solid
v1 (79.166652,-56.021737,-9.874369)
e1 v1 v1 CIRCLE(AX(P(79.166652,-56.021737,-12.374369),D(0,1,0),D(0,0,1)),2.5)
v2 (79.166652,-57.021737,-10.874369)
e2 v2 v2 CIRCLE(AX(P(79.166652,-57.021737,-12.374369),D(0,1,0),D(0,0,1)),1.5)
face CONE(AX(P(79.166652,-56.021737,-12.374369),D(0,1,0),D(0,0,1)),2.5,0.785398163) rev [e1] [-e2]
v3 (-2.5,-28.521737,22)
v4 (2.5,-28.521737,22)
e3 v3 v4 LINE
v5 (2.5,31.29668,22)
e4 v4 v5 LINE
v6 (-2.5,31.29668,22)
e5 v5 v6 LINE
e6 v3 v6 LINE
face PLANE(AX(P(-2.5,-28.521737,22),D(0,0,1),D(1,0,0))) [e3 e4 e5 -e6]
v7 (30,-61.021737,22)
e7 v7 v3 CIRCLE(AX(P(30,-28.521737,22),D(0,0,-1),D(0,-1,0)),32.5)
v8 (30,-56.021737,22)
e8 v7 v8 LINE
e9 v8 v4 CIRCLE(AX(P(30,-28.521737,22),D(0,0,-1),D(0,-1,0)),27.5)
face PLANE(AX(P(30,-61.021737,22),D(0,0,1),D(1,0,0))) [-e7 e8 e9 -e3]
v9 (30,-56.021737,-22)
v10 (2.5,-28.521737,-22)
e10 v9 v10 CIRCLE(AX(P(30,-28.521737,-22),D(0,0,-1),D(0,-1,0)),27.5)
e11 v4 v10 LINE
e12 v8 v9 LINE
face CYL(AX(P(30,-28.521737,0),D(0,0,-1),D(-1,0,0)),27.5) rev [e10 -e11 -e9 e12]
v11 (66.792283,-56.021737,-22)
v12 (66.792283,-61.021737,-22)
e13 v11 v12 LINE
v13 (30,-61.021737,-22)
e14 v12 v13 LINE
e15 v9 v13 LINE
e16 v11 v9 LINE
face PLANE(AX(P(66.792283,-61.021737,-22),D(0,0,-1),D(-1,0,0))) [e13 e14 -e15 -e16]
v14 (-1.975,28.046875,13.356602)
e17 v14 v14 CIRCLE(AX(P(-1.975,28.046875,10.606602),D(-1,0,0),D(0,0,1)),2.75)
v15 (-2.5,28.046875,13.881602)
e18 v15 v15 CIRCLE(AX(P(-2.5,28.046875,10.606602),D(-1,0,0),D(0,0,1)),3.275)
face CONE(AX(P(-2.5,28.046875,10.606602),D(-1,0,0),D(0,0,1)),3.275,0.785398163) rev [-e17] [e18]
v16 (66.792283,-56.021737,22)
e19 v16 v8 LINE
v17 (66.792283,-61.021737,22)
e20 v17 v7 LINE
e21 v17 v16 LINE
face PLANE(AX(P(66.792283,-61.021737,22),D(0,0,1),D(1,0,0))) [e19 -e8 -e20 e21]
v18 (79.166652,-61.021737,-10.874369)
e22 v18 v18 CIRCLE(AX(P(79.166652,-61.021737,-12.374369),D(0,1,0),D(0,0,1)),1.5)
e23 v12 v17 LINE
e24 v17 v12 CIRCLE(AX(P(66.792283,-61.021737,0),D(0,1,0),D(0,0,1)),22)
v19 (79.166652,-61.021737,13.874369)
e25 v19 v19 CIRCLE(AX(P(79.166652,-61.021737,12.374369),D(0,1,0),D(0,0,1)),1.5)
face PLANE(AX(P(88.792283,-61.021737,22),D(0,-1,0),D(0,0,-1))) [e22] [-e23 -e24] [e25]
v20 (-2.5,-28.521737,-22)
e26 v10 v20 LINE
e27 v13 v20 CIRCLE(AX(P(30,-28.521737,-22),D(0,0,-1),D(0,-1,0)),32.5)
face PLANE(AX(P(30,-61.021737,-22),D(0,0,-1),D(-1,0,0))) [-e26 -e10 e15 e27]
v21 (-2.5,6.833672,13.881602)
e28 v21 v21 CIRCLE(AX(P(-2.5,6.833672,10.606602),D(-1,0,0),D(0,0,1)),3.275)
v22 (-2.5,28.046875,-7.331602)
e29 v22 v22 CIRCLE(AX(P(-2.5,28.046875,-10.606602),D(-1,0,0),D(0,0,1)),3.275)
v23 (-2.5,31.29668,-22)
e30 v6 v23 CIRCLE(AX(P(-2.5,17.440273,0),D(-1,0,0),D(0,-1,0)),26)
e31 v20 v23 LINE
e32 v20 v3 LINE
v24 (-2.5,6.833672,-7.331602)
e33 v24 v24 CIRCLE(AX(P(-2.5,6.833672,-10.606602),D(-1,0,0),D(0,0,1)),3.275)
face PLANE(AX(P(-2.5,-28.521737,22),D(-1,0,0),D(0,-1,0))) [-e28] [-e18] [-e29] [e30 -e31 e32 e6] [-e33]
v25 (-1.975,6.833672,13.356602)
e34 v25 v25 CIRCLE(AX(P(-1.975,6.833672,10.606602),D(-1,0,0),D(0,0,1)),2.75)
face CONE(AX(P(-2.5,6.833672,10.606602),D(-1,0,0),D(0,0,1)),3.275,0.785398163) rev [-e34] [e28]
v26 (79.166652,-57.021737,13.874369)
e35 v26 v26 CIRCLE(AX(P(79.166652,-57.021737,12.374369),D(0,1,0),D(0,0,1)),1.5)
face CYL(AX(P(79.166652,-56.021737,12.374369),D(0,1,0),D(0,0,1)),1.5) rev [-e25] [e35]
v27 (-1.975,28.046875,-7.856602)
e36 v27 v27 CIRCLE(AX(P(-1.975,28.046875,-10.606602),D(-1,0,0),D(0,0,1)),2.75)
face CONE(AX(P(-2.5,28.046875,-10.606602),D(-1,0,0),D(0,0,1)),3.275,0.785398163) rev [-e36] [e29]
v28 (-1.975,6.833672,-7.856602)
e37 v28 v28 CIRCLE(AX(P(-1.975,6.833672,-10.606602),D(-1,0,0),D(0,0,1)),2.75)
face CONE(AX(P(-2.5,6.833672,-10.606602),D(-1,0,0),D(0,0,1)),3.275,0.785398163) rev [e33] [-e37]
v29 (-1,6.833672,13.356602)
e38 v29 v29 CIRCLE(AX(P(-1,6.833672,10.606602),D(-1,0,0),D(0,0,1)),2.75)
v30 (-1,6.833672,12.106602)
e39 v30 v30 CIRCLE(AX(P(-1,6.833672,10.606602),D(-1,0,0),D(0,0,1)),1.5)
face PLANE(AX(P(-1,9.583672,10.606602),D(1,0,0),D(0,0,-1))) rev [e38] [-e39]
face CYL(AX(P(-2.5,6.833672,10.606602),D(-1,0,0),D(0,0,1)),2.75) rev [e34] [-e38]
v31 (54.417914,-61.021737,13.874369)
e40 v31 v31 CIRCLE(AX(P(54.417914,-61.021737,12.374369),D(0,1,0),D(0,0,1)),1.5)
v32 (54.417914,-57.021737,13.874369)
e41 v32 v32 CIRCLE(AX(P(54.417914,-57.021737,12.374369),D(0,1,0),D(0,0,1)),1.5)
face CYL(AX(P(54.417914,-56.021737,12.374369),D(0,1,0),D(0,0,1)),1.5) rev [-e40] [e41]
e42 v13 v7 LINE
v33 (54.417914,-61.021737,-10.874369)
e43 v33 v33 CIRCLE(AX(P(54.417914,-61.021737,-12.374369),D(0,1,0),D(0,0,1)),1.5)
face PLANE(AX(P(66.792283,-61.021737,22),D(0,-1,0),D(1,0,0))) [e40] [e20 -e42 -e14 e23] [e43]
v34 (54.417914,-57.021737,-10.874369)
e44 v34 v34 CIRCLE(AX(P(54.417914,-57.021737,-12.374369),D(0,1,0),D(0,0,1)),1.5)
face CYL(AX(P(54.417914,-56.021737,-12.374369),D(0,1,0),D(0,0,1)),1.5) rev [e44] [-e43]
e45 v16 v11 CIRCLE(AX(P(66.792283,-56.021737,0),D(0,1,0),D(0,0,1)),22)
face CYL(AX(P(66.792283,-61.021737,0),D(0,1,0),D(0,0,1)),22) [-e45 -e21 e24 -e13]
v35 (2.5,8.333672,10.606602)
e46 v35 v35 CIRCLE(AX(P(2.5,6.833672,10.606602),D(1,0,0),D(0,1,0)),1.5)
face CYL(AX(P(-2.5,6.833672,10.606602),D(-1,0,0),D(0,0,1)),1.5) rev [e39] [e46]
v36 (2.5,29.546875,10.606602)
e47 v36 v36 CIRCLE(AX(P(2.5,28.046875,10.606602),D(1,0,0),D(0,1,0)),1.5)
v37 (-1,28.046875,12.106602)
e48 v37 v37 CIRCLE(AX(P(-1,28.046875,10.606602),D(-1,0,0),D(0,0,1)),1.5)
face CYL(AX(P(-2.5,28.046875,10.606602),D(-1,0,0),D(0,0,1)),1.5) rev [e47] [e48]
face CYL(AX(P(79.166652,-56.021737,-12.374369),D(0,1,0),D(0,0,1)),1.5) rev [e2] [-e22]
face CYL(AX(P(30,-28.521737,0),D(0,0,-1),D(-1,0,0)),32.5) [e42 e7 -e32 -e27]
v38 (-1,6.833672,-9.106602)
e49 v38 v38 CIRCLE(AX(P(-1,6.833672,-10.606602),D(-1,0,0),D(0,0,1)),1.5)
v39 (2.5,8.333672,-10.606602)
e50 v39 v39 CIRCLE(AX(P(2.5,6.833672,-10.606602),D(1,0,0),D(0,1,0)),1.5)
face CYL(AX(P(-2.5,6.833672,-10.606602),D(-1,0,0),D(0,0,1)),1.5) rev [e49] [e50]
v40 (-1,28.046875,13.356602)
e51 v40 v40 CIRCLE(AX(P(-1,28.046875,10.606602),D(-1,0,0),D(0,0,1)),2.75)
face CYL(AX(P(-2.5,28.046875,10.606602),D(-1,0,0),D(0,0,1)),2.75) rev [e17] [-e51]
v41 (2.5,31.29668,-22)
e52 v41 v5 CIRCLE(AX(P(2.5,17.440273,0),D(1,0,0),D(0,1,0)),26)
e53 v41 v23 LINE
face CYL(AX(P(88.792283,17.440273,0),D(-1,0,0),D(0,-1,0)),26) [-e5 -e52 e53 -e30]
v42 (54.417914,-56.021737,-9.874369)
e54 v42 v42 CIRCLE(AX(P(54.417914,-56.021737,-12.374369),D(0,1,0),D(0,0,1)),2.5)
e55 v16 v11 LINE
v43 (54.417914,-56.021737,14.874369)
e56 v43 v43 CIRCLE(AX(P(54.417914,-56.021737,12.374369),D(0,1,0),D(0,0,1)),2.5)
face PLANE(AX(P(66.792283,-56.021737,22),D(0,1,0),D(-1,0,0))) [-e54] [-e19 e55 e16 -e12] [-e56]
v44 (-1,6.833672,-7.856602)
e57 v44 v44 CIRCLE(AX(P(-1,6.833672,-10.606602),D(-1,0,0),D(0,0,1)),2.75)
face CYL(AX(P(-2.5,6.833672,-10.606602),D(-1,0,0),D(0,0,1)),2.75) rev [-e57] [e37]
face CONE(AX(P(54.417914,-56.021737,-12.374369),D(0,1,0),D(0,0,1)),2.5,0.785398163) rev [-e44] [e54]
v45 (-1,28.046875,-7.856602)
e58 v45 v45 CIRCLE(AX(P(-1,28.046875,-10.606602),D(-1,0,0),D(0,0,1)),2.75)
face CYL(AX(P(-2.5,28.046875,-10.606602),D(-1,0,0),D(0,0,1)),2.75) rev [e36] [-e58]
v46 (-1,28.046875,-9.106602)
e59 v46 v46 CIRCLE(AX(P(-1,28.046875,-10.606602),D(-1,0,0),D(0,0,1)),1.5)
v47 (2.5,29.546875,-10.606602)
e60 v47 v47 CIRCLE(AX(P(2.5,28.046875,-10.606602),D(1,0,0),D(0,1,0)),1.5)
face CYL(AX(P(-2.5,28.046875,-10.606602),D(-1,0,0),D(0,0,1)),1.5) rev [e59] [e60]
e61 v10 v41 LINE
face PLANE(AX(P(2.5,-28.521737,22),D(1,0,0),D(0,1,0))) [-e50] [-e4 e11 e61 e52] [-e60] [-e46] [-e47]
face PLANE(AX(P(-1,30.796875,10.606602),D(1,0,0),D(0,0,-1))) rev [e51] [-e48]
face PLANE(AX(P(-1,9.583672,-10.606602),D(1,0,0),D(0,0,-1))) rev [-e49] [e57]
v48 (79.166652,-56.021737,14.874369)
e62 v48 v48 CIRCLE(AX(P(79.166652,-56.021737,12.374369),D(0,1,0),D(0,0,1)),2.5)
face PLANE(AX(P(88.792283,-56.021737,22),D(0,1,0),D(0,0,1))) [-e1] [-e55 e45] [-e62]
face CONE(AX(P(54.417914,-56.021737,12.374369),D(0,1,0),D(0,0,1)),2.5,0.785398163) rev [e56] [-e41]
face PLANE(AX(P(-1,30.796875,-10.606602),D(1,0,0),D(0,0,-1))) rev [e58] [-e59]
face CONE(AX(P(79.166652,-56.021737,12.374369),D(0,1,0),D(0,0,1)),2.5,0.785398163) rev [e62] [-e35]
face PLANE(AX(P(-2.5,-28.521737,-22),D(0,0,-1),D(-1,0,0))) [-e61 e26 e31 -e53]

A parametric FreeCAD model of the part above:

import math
import FreeCAD as App
import Part
import Sketcher

V = App.Vector
Q = App.Units.Quantity

doc = App.newDocument("Part")
params = doc.addObject("Spreadsheet::Sheet", "Params")
for row, (alias, value) in enumerate([
    ("sketch1_width", "5 mm"),
    ("sketch1_height", "44 mm"),
    ("sketch2_radius", "30 mm"),
    ("sketch3_radius", "22 mm"),
    ("sketch4_radius", "26 mm"),
    ("sketch4_height", "44 mm"),
    ("sketch5_diameter", "3 mm"),
    ("hole_diameter", "3 mm"),
    ("hole_csink_diameter", "5 mm"),
    ("sketch6_height", "1.5 mm"),
    ("sketch6_height2", "1.25 mm"),
    ("groove_angle", "360 deg"),
    ("linearpattern_pitch", "21.213203 mm"),
    ("linearpattern2_pitch", "21.213203 mm"),
    ("linearpattern3_pitch", "30 mm"),
], start=1):
    params.set(f"A{row}", alias)
    params.set(f"B{row}", "=" + value)
    params.setAlias(f"B{row}", alias)

body = doc.addObject("PartDesign::Body", "Body")

# Sketch on XZ plane
sketch1 = body.newObject("Sketcher::SketchObject", "Sketch")
sketch1.AttachmentSupport = (doc.getObject("XZ_Plane"), [""])
sketch1.MapMode = "FlatFace"
sketch1.addGeometry([
    Part.LineSegment(V(-2, -22, 0), V(-2, 22, 0)),
    Part.LineSegment(V(-2, 22, 0), V(2, 22, 0)),
    Part.LineSegment(V(2, 22, 0), V(2, -22, 0)),
    Part.LineSegment(V(2, -22, 0), V(-2, -22, 0)),
], False)
sketch1.addConstraint([
    Sketcher.Constraint("Coincident", 0, 2, 1, 1),
    Sketcher.Constraint("Coincident", 1, 2, 2, 1),
    Sketcher.Constraint("Coincident", 2, 2, 3, 1),
    Sketcher.Constraint("Coincident", 3, 2, 0, 1),
    Sketcher.Constraint("Vertical", 0),
    Sketcher.Constraint("Horizontal", 1),
    Sketcher.Constraint("Vertical", 2),
    Sketcher.Constraint("Horizontal", 3),
    Sketcher.Constraint("Symmetric", 0, 2, 2, 2, -1, 1),
    Sketcher.Constraint("DistanceX", 1, 1, 1, 2, 5.0),
    Sketcher.Constraint("DistanceY", 0, 1, 0, 2, 44.0),
])
sketch1.setExpression("Constraints[9]", "Params.sketch1_width")
sketch1.setExpression("Constraints[10]", "Params.sketch1_height")

# Sketch on XY plane
sketch2 = body.newObject("Sketcher::SketchObject", "Sketch001")
sketch2.AttachmentSupport = (doc.getObject("XY_Plane"), [""])
sketch2.MapMode = "FlatFace"
sketch2.addGeometry([
    Part.LineSegment(V(0, 44, 0), V(0, -29, 0)),
    Part.ArcOfCircle(Part.Circle(V(30, -29, 0), V(0, 0, 1), 30), math.radians(180), math.radians(270)),
    Part.LineSegment(V(30, -59, 0), V(89, -59, 0)),
], False)
sketch2.addConstraint([
    Sketcher.Constraint("Tangent", 0, 2, 1, 1),
    Sketcher.Constraint("Tangent", 1, 2, 2, 1),
    Sketcher.Constraint("Vertical", 0),
    Sketcher.Constraint("Horizontal", 2),
    Sketcher.Constraint("PointOnObject", 0, 1, -2),
    Sketcher.Constraint("Radius", 1, 30.0),
    Sketcher.Constraint("DistanceY", 0, 2, 0, 1, 72.462011),
    Sketcher.Constraint("DistanceX", 2, 1, 2, 2, 58.792283),
    Sketcher.Constraint("DistanceY", 1, 3, -1, 1, 28.521737),
])
sketch2.setExpression("Constraints[5]", "Params.sketch2_radius")
doc.recompute()

additivepipe = body.newObject("PartDesign::AdditivePipe", "AdditivePipe")
additivepipe.Profile = sketch1
additivepipe.Spine = (sketch2, ["Edge1", "Edge2", "Edge3"])

# Sketch on XZ plane
sketch3 = body.newObject("Sketcher::SketchObject", "Sketch002")
sketch3.AttachmentSupport = (doc.getObject("XZ_Plane"), [""])
sketch3.MapMode = "FlatFace"
sketch3.AttachmentOffset = App.Placement(V(0, 0, 56.021737), App.Rotation())
sketch3.addGeometry([
    Part.LineSegment(V(89, -22, 0), V(67, -22, 0)),  # 0
    Part.ArcOfCircle(Part.Circle(V(67, 0, 0), V(0, 0, 1), 22), math.radians(-90), math.radians(0)),  # 1
    Part.LineSegment(V(89, 0, 0), V(89, -22, 0)),  # 2
    Part.LineSegment(V(89, 22, 0), V(89, 0, 0)),  # 3
    Part.ArcOfCircle(Part.Circle(V(67, 0, 0), V(0, 0, 1), 22), math.radians(0), math.radians(90)),  # 4
    Part.LineSegment(V(67, 22, 0), V(89, 22, 0)),  # 5
], False)
sketch3.addConstraint([
    Sketcher.Constraint("Tangent", 0, 2, 1, 1),
    Sketcher.Constraint("Tangent", 1, 2, 2, 1),
    Sketcher.Constraint("Coincident", 2, 2, 0, 1),
    Sketcher.Constraint("Tangent", 3, 2, 4, 1),
    Sketcher.Constraint("Tangent", 4, 2, 5, 1),
    Sketcher.Constraint("Coincident", 5, 2, 3, 1),
    Sketcher.Constraint("Horizontal", 0),
    Sketcher.Constraint("Vertical", 2),
    Sketcher.Constraint("Vertical", 3),
    Sketcher.Constraint("Horizontal", 5),
    Sketcher.Constraint("Coincident", 4, 3, 1, 3),
    Sketcher.Constraint("Equal", 1, 4),
    Sketcher.Constraint("PointOnObject", 1, 3, -1),
    Sketcher.Constraint("Radius", 1, 22.0),
    Sketcher.Constraint("DistanceX", -1, 1, 1, 3, 66.792283),
])
sketch3.setExpression("Constraints[13]", "Params.sketch3_radius")
pocket1 = body.newObject("PartDesign::Pocket", "Pocket")
pocket1.Profile = sketch3
pocket1.Type = "ThroughAll"
pocket1.Reversed = True

# Sketch on YZ plane
sketch4 = body.newObject("Sketcher::SketchObject", "Sketch003")
sketch4.AttachmentSupport = (doc.getObject("YZ_Plane"), [""])
sketch4.MapMode = "FlatFace"
sketch4.AttachmentOffset = App.Placement(V(0, 0, -2.5), App.Rotation())
sketch4.addGeometry([
    Part.LineSegment(V(44, 22, 0), V(44, -22, 0)),
    Part.LineSegment(V(44, -22, 0), V(31, -22, 0)),
    Part.ArcOfCircle(Part.Circle(V(17, 0, 0), V(0, 0, 1), 26), math.radians(-58), math.radians(58)),
    Part.LineSegment(V(31, 22, 0), V(44, 22, 0)),
], False)
sketch4.addConstraint([
    Sketcher.Constraint("Coincident", 0, 2, 1, 1),
    Sketcher.Constraint("Coincident", 1, 2, 2, 1),
    Sketcher.Constraint("Coincident", 2, 2, 3, 1),
    Sketcher.Constraint("Coincident", 3, 2, 0, 1),
    Sketcher.Constraint("Vertical", 0),
    Sketcher.Constraint("Horizontal", 1),
    Sketcher.Constraint("Horizontal", 3),
    Sketcher.Constraint("Symmetric", 1, 2, 2, 2, -1),
    Sketcher.Constraint("Radius", 2, 26.0),
    Sketcher.Constraint("DistanceY", 0, 2, 0, 1, 44.0),
    Sketcher.Constraint("DistanceX", 2, 3, 0, 2, 26.5),
    Sketcher.Constraint("DistanceX", -1, 1, 1, 2, 31.29668),
])
sketch4.setExpression("Constraints[8]", "Params.sketch4_radius")
sketch4.setExpression("Constraints[9]", "Params.sketch4_height")
pocket2 = body.newObject("PartDesign::Pocket", "Pocket001")
pocket2.Profile = sketch4
pocket2.Type = "ThroughAll"
pocket2.Reversed = True

# Sketch on XZ plane
sketch5 = body.newObject("Sketcher::SketchObject", "Sketch004")
sketch5.AttachmentSupport = (doc.getObject("XZ_Plane"), [""])
sketch5.MapMode = "FlatFace"
sketch5.AttachmentOffset = App.Placement(V(0, 0, 56.021737), App.Rotation())
sketch5.addGeometry([
    Part.Circle(V(54.4, 12.4, 0), V(0, 0, 1), 1.5),
    Part.Circle(V(79.2, 12.4, 0), V(0, 0, 1), 1.5),
    Part.Circle(V(79.2, -12.4, 0), V(0, 0, 1), 1.5),
    Part.Circle(V(54.4, -12.4, 0), V(0, 0, 1), 1.5),
], False)
sketch5.addConstraint([
    Sketcher.Constraint("Equal", 0, 1),
    Sketcher.Constraint("Equal", 1, 2),
    Sketcher.Constraint("Equal", 2, 3),
    Sketcher.Constraint("Symmetric", 1, 3, 2, 3, -1),
    Sketcher.Constraint("Symmetric", 0, 3, 3, 3, -1),
    Sketcher.Constraint("Horizontal", 0, 3, 1, 3),
    Sketcher.Constraint("Diameter", 0, 3.0),
    Sketcher.Constraint("DistanceY", -1, 1, 0, 3, 12.374369),
    Sketcher.Constraint("DistanceX", -1, 1, 1, 3, 79.166652),
    Sketcher.Constraint("DistanceX", -1, 1, 0, 3, 54.417914),
])
sketch5.setExpression("Constraints[6]", "Params.sketch5_diameter")
doc.recompute()
hole = body.newObject("PartDesign::Hole", "Hole")
hole.Profile = sketch5
hole.ThreadType = "None"
hole.setExpression("Diameter", "Params.hole_diameter")
hole.DepthType = "ThroughAll"
hole.HoleCutType = "Countersink"
hole.setExpression("HoleCutDiameter", "Params.hole_csink_diameter")
hole.HoleCutCountersinkAngle = 90
hole.Reversed = True

# Sketch on XZ plane
sketch6 = body.newObject("Sketcher::SketchObject", "Sketch005")
sketch6.AttachmentSupport = (doc.getObject("XZ_Plane"), [""])
sketch6.MapMode = "FlatFace"
sketch6.AttachmentOffset = App.Placement(V(0, 0, -28.046875), App.Rotation())
sketch6.addGeometry([
    Part.LineSegment(V(88.8, -10.6, 0), V(-2.5, -10.6, 0)),  # 0
    Part.LineSegment(V(-2.5, -10.6, 0), V(-2.5, -7.3, 0)),  # 1
    Part.LineSegment(V(-2.5, -7.3, 0), V(-2, -7.9, 0)),  # 2
    Part.LineSegment(V(-2, -7.9, 0), V(-1, -7.9, 0)),  # 3
    Part.LineSegment(V(-1, -7.9, 0), V(-1, -9.1, 0)),  # 4
    Part.LineSegment(V(-1, -9.1, 0), V(88.8, -9.1, 0)),  # 5
    Part.LineSegment(V(88.8, -9.1, 0), V(88.8, -10.6, 0)),  # 6
], False)
sketch6.addGeometry(Part.LineSegment(V(-2.5, -10.6, 0), V(88.8, -10.6, 0)), True)  # axis
sketch6.addConstraint([
    Sketcher.Constraint("Coincident", 0, 2, 1, 1),
    Sketcher.Constraint("Coincident", 1, 2, 2, 1),
    Sketcher.Constraint("Coincident", 2, 2, 3, 1),
    Sketcher.Constraint("Coincident", 3, 2, 4, 1),
    Sketcher.Constraint("Coincident", 4, 2, 5, 1),
    Sketcher.Constraint("Coincident", 5, 2, 6, 1),
    Sketcher.Constraint("Coincident", 6, 2, 0, 1),
    Sketcher.Constraint("Horizontal", 0),
    Sketcher.Constraint("Vertical", 1),
    Sketcher.Constraint("Horizontal", 3),
    Sketcher.Constraint("Vertical", 4),
    Sketcher.Constraint("Horizontal", 5),
    Sketcher.Constraint("Vertical", 6),
    Sketcher.Constraint("Horizontal", 7),
    Sketcher.Constraint("Coincident", 7, 1, 0, 2),
    Sketcher.Constraint("Vertical", 5, 2, 7, 2),
    Sketcher.Constraint("Angle", 2, Q("-45 deg")),
    Sketcher.Constraint("DistanceY", 6, 2, 6, 1, 1.5),
    Sketcher.Constraint("DistanceX", 3, 2, -1, 1, 1.0),
    Sketcher.Constraint("DistanceY", 4, 2, 4, 1, 1.25),
    Sketcher.Constraint("DistanceX", 0, 2, -1, 1, 2.5),
    Sketcher.Constraint("DistanceX", 3, 1, 3, 2, 0.975),
    Sketcher.Constraint("DistanceY", 0, 2, -1, 1, 10.606602),
    Sketcher.Constraint("DistanceX", 0, 2, 0, 1, 91.292283),
])
sketch6.setExpression("Constraints[17]", "Params.sketch6_height")
sketch6.setExpression("Constraints[19]", "Params.sketch6_height2")
groove = body.newObject("PartDesign::Groove", "Groove")
groove.Profile = sketch6
groove.ReferenceAxis = (sketch6, ["Axis0"])
groove.setExpression("Angle", "Params.groove_angle")
doc.recompute()

linearpattern = body.newObject("PartDesign::LinearPattern", "LinearPattern")
linearpattern.Originals = [groove]
linearpattern.Direction = (doc.getObject("Z_Axis"), [""])
linearpattern.Mode = "offset"
linearpattern.setExpression("Offset", "Params.linearpattern_pitch")
linearpattern.Occurrences = 2
body.Tip = linearpattern
doc.recompute()

linearpattern2 = body.newObject("PartDesign::LinearPattern", "LinearPattern001")
linearpattern2.Originals = [groove]
linearpattern2.Direction = (doc.getObject("Y_Axis"), [""])
linearpattern2.Mode = "offset"
linearpattern2.setExpression("Offset", "Params.linearpattern2_pitch")
linearpattern2.Occurrences = 2
linearpattern2.Reversed = True
body.Tip = linearpattern2
doc.recompute()

datumline = body.newObject("PartDesign::Line", "DatumLine")
datumline.Placement = App.Placement(V(0, 0, 0), App.Rotation(V(0, 0, 1), V(0, -0.707106781, 0.707106781)))
linearpattern3 = body.newObject("PartDesign::LinearPattern", "LinearPattern002")
linearpattern3.Originals = [groove]
linearpattern3.Direction = (datumline, [""])
linearpattern3.Mode = "offset"
linearpattern3.setExpression("Offset", "Params.linearpattern3_pitch")
linearpattern3.Occurrences = 2
body.Tip = linearpattern3

doc.recompute()
